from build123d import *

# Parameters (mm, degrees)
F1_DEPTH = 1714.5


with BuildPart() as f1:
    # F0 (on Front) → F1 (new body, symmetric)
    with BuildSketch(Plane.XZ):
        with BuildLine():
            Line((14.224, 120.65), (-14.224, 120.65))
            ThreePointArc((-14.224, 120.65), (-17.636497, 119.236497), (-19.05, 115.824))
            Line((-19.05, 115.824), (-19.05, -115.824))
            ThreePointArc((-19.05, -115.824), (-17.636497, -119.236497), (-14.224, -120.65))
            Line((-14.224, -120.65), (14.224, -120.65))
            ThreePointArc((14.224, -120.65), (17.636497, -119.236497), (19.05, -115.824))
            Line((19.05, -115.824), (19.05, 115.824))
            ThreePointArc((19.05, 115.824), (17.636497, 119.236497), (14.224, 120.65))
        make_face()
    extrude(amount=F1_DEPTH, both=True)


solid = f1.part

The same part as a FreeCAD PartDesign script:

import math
import FreeCAD as App
import Part
import Sketcher

V = App.Vector
Q = App.Units.Quantity

doc = App.newDocument("Part")
body = doc.addObject("PartDesign::Body", "Body")

# Sketch on XZ plane
sketch1 = body.newObject("Sketcher::SketchObject", "Sketch")
sketch1.AttachmentSupport = (doc.getObject("XZ_Plane"), [""])
sketch1.MapMode = "FlatFace"
sketch1.addGeometry(Part.LineSegment(V(14.2, 120.7, 0), V(-14.2, 120.7, 0)), False)
sketch1.addGeometry(Part.ArcOfCircle(Part.Circle(V(-14.2, 115.8, 0), V(0, 0, 1), 4.8), math.radians(90), math.radians(180)), False)
sketch1.addGeometry(Part.LineSegment(V(-19.1, 115.8, 0), V(-19.1, -115.8, 0)), False)
sketch1.addGeometry(Part.ArcOfCircle(Part.Circle(V(-14.2, -115.8, 0), V(0, 0, 1), 4.8), math.radians(-180), math.radians(-90)), False)
sketch1.addGeometry(Part.LineSegment(V(-14.2, -120.7, 0), V(14.2, -120.7, 0)), False)
sketch1.addGeometry(Part.ArcOfCircle(Part.Circle(V(14.2, -115.8, 0), V(0, 0, 1), 4.8), math.radians(-90), math.radians(0)), False)
sketch1.addGeometry(Part.LineSegment(V(19.1, -115.8, 0), V(19.1, 115.8, 0)), False)
sketch1.addGeometry(Part.ArcOfCircle(Part.Circle(V(14.2, 115.8, 0), V(0, 0, 1), 4.8), math.radians(0), math.radians(90)), False)
sketch1.addConstraint(Sketcher.Constraint("Tangent", 0, 2, 1, 1))
sketch1.addConstraint(Sketcher.Constraint("Tangent", 1, 2, 2, 1))
sketch1.addConstraint(Sketcher.Constraint("Tangent", 2, 2, 3, 1))
sketch1.addConstraint(Sketcher.Constraint("Tangent", 3, 2, 4, 1))
sketch1.addConstraint(Sketcher.Constraint("Tangent", 4, 2, 5, 1))
sketch1.addConstraint(Sketcher.Constraint("Tangent", 5, 2, 6, 1))
sketch1.addConstraint(Sketcher.Constraint("Tangent", 6, 2, 7, 1))
sketch1.addConstraint(Sketcher.Constraint("Tangent", 7, 2, 0, 1))
sketch1.addConstraint(Sketcher.Constraint("Horizontal", 0))
sketch1.addConstraint(Sketcher.Constraint("Vertical", 2))
sketch1.addConstraint(Sketcher.Constraint("Horizontal", 4))
sketch1.addConstraint(Sketcher.Constraint("Vertical", 6))
sketch1.addConstraint(Sketcher.Constraint("Equal", 1, 3))
sketch1.addConstraint(Sketcher.Constraint("Equal", 3, 5))
sketch1.addConstraint(Sketcher.Constraint("Equal", 5, 7))
sketch1.addConstraint(Sketcher.Constraint("Symmetric", 1, 3, 5, 3, -1, 1))
sketch1.addConstraint(Sketcher.Constraint("Radius", 1, Q("0.19 in")))
sketch1.addConstraint(Sketcher.Constraint("DistanceX", 0, 2, 0, 1, Q("1.12 in")))
sketch1.addConstraint(Sketcher.Constraint("DistanceY", 2, 2, 2, 1, Q("9.12 in")))
pad1 = body.newObject("PartDesign::Pad", "Pad")
pad1.Profile = sketch1
pad1.Length = Q("135 in")
pad1.Midplane = True

doc.recompute()
